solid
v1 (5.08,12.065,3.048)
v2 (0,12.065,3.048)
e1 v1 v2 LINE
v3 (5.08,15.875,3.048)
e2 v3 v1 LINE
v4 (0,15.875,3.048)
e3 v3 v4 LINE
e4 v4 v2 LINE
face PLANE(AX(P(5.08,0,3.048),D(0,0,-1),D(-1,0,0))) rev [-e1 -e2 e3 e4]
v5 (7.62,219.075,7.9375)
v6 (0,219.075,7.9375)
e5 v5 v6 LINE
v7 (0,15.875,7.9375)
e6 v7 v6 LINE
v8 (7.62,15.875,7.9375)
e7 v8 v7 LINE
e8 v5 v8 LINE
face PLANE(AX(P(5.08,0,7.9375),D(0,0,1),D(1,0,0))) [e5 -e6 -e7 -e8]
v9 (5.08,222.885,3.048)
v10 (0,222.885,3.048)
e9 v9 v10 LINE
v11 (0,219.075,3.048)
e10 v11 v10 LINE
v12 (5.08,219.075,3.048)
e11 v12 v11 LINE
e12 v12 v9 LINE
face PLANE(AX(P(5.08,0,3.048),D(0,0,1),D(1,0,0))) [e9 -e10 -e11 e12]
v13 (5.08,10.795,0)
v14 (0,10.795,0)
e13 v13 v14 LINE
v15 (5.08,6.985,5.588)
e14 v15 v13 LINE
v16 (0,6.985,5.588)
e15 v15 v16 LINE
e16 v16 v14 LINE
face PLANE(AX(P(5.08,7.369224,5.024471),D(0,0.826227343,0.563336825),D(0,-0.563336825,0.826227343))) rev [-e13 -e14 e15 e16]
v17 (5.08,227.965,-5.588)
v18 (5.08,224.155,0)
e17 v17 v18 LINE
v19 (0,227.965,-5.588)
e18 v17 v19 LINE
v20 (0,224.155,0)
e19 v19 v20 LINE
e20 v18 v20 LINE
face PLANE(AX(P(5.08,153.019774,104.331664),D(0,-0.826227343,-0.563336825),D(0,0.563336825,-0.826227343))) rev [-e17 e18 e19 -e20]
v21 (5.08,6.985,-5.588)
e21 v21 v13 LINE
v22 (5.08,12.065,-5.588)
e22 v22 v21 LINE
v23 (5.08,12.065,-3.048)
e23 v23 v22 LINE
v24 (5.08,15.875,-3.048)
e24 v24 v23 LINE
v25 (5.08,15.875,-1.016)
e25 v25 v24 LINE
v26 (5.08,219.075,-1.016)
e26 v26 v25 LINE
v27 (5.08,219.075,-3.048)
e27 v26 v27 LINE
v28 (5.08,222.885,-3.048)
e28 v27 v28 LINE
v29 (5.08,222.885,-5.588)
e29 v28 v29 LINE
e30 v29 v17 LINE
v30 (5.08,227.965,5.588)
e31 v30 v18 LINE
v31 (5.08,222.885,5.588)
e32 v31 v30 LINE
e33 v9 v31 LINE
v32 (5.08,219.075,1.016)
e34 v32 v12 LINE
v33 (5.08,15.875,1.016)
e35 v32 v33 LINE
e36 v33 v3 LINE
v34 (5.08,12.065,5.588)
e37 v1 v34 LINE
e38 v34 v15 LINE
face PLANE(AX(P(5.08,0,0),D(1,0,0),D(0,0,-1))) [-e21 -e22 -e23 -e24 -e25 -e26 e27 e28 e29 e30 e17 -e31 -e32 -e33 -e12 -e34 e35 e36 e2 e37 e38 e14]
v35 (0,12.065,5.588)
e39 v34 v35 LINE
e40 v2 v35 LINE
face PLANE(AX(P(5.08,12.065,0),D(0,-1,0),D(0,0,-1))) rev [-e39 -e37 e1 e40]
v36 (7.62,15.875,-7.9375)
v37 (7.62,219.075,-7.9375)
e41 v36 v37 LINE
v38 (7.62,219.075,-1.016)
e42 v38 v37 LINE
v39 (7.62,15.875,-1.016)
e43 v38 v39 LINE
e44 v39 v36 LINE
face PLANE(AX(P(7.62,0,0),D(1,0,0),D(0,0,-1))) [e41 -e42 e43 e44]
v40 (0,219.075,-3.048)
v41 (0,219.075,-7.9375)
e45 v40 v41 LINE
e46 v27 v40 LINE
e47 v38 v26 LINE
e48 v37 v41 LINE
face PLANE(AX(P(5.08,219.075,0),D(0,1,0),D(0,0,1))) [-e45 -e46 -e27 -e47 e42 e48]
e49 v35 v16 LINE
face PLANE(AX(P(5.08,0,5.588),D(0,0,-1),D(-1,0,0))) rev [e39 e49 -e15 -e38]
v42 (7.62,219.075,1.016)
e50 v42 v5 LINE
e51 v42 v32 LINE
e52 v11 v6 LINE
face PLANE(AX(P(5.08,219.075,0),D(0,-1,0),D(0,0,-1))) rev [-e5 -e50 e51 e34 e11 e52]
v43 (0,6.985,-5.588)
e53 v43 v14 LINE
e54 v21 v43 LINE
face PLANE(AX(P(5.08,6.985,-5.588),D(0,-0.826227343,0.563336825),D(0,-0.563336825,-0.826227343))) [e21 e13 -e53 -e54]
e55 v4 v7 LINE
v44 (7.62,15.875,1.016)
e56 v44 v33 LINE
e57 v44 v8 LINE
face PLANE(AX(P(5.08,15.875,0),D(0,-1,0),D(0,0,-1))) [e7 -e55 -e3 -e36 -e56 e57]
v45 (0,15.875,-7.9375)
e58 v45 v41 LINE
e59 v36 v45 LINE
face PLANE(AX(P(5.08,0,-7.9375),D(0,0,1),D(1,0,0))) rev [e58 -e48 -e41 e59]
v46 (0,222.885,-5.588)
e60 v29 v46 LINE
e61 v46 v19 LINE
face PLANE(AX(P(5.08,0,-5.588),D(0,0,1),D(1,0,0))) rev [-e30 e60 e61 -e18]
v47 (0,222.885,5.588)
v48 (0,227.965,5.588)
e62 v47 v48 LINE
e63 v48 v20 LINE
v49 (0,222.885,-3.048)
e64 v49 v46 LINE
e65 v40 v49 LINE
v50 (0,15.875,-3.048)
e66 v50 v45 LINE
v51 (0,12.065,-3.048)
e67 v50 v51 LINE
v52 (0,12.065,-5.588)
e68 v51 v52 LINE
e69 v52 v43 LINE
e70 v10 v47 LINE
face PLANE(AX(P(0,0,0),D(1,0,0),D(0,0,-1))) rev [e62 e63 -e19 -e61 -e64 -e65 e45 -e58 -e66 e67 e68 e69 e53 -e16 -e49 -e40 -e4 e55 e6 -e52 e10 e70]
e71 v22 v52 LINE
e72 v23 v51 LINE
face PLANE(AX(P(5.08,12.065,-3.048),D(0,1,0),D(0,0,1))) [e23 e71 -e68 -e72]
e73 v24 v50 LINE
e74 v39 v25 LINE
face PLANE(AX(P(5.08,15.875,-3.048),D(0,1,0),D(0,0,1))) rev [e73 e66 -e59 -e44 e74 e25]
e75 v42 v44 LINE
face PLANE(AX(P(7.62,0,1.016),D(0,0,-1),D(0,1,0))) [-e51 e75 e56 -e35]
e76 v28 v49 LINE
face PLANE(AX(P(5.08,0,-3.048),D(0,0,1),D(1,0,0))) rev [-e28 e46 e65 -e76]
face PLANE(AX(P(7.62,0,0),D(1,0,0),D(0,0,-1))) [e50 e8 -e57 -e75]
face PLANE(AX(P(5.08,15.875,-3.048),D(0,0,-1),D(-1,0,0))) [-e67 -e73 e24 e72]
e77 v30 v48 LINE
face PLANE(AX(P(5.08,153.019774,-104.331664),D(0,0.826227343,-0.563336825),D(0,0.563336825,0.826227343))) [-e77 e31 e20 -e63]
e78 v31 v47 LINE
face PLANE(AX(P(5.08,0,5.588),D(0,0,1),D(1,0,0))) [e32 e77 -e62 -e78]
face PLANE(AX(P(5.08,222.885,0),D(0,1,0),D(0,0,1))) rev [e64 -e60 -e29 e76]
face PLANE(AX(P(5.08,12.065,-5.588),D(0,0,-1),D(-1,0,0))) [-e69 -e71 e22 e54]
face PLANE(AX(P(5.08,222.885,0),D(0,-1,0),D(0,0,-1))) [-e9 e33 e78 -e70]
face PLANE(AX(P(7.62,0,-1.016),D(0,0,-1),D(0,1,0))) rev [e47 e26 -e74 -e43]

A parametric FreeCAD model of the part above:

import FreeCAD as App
import Part
import Sketcher
from FreeCAD import Vector
Q = App.Units.Quantity


def add_polygon(sketch, points):
    """Adds a closed chain of lines whose ends are joined by coincident constraints."""
    first, n = sketch.GeometryCount, len(points)
    for a, b in zip(points, points[1:] + points[:1]):
        sketch.addGeometry(Part.LineSegment(App.Vector(*a, 0), App.Vector(*b, 0)), False)
    for i in range(n):
        sketch.addConstraint(Sketcher.Constraint("Coincident", first + i, 2, first + (i + 1) % n, 1))

doc = App.newDocument("Part")
body = doc.addObject("PartDesign::Body", "Body")

# Sketch on YZ plane
sketch1 = body.newObject("Sketcher::SketchObject", "Sketch")
sketch1.AttachmentSupport = (doc.getObject("YZ_Plane"), [""])
sketch1.MapMode = "FlatFace"
add_polygon(sketch1, [(15.875, 7.9375), (15.875, 3.048), (12.065, 3.048), (12.065, 5.588), (6.985, 5.588), (10.795, 0), (6.985, -5.588), (12.065, -5.588), (12.065, -3.048), (15.875, -3.048), (15.875, -7.9375), (219.075, -7.9375), (219.075, -3.048), (222.885, -3.048), (222.885, -5.588), (227.965, -5.588), (224.155, 0), (227.965, 5.588), (222.885, 5.588), (222.885, 3.048), (219.075, 3.048), (219.075, 7.9375)])  # lines 0-21
sketch1.addConstraint(Sketcher.Constraint("Vertical", 0))
sketch1.addConstraint(Sketcher.Constraint("Horizontal", 1))
sketch1.addConstraint(Sketcher.Constraint("Vertical", 2))
sketch1.addConstraint(Sketcher.Constraint("Horizontal", 3))
sketch1.addConstraint(Sketcher.Constraint("Horizontal", 6))
sketch1.addConstraint(Sketcher.Constraint("Vertical", 7))
sketch1.addConstraint(Sketcher.Constraint("Horizontal", 8))
sketch1.addConstraint(Sketcher.Constraint("Vertical", 9))
sketch1.addConstraint(Sketcher.Constraint("Horizontal", 10))
sketch1.addConstraint(Sketcher.Constraint("Vertical", 11))
sketch1.addConstraint(Sketcher.Constraint("Horizontal", 12))
sketch1.addConstraint(Sketcher.Constraint("Vertical", 13))
sketch1.addConstraint(Sketcher.Constraint("Horizontal", 14))
sketch1.addConstraint(Sketcher.Constraint("Horizontal", 17))
sketch1.addConstraint(Sketcher.Constraint("Vertical", 18))
sketch1.addConstraint(Sketcher.Constraint("Horizontal", 19))
sketch1.addConstraint(Sketcher.Constraint("Vertical", 20))
sketch1.addConstraint(Sketcher.Constraint("Horizontal", 21))
sketch1.addConstraint(Sketcher.Constraint("Symmetric", 3, 2, 5, 2, -1))
sketch1.addConstraint(Sketcher.Constraint("Symmetric", 1, 2, 7, 2, -1))
sketch1.addConstraint(Sketcher.Constraint("Symmetric", 14, 2, 16, 2, -1))
sketch1.addConstraint(Sketcher.Constraint("Symmetric", 12, 2, 18, 2, -1))
sketch1.addConstraint(Sketcher.Constraint("Symmetric", 10, 2, 20, 2, -1))
sketch1.addConstraint(Sketcher.Constraint("PointOnObject", 4, 2, -1))
sketch1.addConstraint(Sketcher.Constraint("PointOnObject", 15, 2, -1))
sketch1.addConstraint(Sketcher.Constraint("Parallel", 4, 15))
sketch1.addConstraint(Sketcher.Constraint("Horizontal", 8, 2, 11, 2))
sketch1.addConstraint(Sketcher.Constraint("Horizontal", 6, 2, 13, 2))
sketch1.addConstraint(Sketcher.Constraint("Vertical", 0, 2, 8, 2))
sketch1.addConstraint(Sketcher.Constraint("Equal", 8, 12))
sketch1.addConstraint(Sketcher.Constraint("Equal", 6, 14))
sketch1.addConstraint(Sketcher.Constraint("DistanceX", 10, 1, 10, 2, Q("8 in")))
sketch1.addConstraint(Sketcher.Constraint("DistanceX", 3, 2, 3, 1, Q("0.2 in")))
sketch1.addConstraint(Sketcher.Constraint("DistanceY", 2, 1, 2, 2, Q("0.1 in")))
sketch1.addConstraint(Sketcher.Constraint("DistanceX", 1, 2, 1, 1, Q("0.15 in")))
sketch1.addConstraint(Sketcher.Constraint("DistanceX", 4, 2, 0, 2, Q("0.2 in")))
sketch1.addConstraint(Sketcher.Constraint("DistanceY", -1, 1, 0, 2, Q("0.12 in")))
sketch1.addConstraint(Sketcher.Constraint("DistanceY", 0, 2, 0, 1, Q("0.1925 in")))
sketch1.addConstraint(Sketcher.Constraint("DistanceX", -1, 1, 0, 2, Q("0.625 in")))
pad1 = body.newObject("PartDesign::Pad", "Pad")
pad1.Profile = sketch1
pad1.Length = Q("0.2 in")

# Sketch on YZ plane
sketch2 = body.newObject("Sketcher::SketchObject", "Sketch001")
sketch2.AttachmentSupport = (doc.getObject("YZ_Plane"), [""])
sketch2.MapMode = "FlatFace"
sketch2.AttachmentOffset = App.Placement(Vector(0, 0, 0.2 * 25.4), App.Rotation())
add_polygon(sketch2, [(219.075, -1.016), (15.875, -1.016), (15.875, -7.9375), (219.075, -7.9375)])  # lines 0-3
add_polygon(sketch2, [(219.075, 7.9375), (15.875, 7.9375), (15.875, 1.016), (219.075, 1.016)])  # lines 4-7
sketch2.addConstraint(Sketcher.Constraint("Horizontal", 0))
sketch2.addConstraint(Sketcher.Constraint("Vertical", 1))
sketch2.addConstraint(Sketcher.Constraint("Horizontal", 2))
sketch2.addConstraint(Sketcher.Constraint("Vertical", 3))
sketch2.addConstraint(Sketcher.Constraint("Horizontal", 4))
sketch2.addConstraint(Sketcher.Constraint("Vertical", 5))
sketch2.addConstraint(Sketcher.Constraint("Horizontal", 6))
sketch2.addConstraint(Sketcher.Constraint("Vertical", 7))
sketch2.addConstraint(Sketcher.Constraint("Symmetric", 1, 2, 4, 2, -1))
sketch2.addConstraint(Sketcher.Constraint("Symmetric", 3, 2, 6, 2, -1))
sketch2.addConstraint(Sketcher.Constraint("DistanceX", 0, 2, 0, 1, Q("8 in")))
sketch2.addConstraint(Sketcher.Constraint("DistanceY", 0, 2, -1, 1, Q("0.04 in")))
sketch2.addConstraint(Sketcher.Constraint("DistanceY", 1, 2, 1, 1, Q("0.2725 in")))
sketch2.addConstraint(Sketcher.Constraint("DistanceX", -1, 1, 0, 2, Q("0.625 in")))
pad2 = body.newObject("PartDesign::Pad", "Pad001")
pad2.Profile = sketch2
pad2.Length = Q("0.1 in")

doc.recompute()
